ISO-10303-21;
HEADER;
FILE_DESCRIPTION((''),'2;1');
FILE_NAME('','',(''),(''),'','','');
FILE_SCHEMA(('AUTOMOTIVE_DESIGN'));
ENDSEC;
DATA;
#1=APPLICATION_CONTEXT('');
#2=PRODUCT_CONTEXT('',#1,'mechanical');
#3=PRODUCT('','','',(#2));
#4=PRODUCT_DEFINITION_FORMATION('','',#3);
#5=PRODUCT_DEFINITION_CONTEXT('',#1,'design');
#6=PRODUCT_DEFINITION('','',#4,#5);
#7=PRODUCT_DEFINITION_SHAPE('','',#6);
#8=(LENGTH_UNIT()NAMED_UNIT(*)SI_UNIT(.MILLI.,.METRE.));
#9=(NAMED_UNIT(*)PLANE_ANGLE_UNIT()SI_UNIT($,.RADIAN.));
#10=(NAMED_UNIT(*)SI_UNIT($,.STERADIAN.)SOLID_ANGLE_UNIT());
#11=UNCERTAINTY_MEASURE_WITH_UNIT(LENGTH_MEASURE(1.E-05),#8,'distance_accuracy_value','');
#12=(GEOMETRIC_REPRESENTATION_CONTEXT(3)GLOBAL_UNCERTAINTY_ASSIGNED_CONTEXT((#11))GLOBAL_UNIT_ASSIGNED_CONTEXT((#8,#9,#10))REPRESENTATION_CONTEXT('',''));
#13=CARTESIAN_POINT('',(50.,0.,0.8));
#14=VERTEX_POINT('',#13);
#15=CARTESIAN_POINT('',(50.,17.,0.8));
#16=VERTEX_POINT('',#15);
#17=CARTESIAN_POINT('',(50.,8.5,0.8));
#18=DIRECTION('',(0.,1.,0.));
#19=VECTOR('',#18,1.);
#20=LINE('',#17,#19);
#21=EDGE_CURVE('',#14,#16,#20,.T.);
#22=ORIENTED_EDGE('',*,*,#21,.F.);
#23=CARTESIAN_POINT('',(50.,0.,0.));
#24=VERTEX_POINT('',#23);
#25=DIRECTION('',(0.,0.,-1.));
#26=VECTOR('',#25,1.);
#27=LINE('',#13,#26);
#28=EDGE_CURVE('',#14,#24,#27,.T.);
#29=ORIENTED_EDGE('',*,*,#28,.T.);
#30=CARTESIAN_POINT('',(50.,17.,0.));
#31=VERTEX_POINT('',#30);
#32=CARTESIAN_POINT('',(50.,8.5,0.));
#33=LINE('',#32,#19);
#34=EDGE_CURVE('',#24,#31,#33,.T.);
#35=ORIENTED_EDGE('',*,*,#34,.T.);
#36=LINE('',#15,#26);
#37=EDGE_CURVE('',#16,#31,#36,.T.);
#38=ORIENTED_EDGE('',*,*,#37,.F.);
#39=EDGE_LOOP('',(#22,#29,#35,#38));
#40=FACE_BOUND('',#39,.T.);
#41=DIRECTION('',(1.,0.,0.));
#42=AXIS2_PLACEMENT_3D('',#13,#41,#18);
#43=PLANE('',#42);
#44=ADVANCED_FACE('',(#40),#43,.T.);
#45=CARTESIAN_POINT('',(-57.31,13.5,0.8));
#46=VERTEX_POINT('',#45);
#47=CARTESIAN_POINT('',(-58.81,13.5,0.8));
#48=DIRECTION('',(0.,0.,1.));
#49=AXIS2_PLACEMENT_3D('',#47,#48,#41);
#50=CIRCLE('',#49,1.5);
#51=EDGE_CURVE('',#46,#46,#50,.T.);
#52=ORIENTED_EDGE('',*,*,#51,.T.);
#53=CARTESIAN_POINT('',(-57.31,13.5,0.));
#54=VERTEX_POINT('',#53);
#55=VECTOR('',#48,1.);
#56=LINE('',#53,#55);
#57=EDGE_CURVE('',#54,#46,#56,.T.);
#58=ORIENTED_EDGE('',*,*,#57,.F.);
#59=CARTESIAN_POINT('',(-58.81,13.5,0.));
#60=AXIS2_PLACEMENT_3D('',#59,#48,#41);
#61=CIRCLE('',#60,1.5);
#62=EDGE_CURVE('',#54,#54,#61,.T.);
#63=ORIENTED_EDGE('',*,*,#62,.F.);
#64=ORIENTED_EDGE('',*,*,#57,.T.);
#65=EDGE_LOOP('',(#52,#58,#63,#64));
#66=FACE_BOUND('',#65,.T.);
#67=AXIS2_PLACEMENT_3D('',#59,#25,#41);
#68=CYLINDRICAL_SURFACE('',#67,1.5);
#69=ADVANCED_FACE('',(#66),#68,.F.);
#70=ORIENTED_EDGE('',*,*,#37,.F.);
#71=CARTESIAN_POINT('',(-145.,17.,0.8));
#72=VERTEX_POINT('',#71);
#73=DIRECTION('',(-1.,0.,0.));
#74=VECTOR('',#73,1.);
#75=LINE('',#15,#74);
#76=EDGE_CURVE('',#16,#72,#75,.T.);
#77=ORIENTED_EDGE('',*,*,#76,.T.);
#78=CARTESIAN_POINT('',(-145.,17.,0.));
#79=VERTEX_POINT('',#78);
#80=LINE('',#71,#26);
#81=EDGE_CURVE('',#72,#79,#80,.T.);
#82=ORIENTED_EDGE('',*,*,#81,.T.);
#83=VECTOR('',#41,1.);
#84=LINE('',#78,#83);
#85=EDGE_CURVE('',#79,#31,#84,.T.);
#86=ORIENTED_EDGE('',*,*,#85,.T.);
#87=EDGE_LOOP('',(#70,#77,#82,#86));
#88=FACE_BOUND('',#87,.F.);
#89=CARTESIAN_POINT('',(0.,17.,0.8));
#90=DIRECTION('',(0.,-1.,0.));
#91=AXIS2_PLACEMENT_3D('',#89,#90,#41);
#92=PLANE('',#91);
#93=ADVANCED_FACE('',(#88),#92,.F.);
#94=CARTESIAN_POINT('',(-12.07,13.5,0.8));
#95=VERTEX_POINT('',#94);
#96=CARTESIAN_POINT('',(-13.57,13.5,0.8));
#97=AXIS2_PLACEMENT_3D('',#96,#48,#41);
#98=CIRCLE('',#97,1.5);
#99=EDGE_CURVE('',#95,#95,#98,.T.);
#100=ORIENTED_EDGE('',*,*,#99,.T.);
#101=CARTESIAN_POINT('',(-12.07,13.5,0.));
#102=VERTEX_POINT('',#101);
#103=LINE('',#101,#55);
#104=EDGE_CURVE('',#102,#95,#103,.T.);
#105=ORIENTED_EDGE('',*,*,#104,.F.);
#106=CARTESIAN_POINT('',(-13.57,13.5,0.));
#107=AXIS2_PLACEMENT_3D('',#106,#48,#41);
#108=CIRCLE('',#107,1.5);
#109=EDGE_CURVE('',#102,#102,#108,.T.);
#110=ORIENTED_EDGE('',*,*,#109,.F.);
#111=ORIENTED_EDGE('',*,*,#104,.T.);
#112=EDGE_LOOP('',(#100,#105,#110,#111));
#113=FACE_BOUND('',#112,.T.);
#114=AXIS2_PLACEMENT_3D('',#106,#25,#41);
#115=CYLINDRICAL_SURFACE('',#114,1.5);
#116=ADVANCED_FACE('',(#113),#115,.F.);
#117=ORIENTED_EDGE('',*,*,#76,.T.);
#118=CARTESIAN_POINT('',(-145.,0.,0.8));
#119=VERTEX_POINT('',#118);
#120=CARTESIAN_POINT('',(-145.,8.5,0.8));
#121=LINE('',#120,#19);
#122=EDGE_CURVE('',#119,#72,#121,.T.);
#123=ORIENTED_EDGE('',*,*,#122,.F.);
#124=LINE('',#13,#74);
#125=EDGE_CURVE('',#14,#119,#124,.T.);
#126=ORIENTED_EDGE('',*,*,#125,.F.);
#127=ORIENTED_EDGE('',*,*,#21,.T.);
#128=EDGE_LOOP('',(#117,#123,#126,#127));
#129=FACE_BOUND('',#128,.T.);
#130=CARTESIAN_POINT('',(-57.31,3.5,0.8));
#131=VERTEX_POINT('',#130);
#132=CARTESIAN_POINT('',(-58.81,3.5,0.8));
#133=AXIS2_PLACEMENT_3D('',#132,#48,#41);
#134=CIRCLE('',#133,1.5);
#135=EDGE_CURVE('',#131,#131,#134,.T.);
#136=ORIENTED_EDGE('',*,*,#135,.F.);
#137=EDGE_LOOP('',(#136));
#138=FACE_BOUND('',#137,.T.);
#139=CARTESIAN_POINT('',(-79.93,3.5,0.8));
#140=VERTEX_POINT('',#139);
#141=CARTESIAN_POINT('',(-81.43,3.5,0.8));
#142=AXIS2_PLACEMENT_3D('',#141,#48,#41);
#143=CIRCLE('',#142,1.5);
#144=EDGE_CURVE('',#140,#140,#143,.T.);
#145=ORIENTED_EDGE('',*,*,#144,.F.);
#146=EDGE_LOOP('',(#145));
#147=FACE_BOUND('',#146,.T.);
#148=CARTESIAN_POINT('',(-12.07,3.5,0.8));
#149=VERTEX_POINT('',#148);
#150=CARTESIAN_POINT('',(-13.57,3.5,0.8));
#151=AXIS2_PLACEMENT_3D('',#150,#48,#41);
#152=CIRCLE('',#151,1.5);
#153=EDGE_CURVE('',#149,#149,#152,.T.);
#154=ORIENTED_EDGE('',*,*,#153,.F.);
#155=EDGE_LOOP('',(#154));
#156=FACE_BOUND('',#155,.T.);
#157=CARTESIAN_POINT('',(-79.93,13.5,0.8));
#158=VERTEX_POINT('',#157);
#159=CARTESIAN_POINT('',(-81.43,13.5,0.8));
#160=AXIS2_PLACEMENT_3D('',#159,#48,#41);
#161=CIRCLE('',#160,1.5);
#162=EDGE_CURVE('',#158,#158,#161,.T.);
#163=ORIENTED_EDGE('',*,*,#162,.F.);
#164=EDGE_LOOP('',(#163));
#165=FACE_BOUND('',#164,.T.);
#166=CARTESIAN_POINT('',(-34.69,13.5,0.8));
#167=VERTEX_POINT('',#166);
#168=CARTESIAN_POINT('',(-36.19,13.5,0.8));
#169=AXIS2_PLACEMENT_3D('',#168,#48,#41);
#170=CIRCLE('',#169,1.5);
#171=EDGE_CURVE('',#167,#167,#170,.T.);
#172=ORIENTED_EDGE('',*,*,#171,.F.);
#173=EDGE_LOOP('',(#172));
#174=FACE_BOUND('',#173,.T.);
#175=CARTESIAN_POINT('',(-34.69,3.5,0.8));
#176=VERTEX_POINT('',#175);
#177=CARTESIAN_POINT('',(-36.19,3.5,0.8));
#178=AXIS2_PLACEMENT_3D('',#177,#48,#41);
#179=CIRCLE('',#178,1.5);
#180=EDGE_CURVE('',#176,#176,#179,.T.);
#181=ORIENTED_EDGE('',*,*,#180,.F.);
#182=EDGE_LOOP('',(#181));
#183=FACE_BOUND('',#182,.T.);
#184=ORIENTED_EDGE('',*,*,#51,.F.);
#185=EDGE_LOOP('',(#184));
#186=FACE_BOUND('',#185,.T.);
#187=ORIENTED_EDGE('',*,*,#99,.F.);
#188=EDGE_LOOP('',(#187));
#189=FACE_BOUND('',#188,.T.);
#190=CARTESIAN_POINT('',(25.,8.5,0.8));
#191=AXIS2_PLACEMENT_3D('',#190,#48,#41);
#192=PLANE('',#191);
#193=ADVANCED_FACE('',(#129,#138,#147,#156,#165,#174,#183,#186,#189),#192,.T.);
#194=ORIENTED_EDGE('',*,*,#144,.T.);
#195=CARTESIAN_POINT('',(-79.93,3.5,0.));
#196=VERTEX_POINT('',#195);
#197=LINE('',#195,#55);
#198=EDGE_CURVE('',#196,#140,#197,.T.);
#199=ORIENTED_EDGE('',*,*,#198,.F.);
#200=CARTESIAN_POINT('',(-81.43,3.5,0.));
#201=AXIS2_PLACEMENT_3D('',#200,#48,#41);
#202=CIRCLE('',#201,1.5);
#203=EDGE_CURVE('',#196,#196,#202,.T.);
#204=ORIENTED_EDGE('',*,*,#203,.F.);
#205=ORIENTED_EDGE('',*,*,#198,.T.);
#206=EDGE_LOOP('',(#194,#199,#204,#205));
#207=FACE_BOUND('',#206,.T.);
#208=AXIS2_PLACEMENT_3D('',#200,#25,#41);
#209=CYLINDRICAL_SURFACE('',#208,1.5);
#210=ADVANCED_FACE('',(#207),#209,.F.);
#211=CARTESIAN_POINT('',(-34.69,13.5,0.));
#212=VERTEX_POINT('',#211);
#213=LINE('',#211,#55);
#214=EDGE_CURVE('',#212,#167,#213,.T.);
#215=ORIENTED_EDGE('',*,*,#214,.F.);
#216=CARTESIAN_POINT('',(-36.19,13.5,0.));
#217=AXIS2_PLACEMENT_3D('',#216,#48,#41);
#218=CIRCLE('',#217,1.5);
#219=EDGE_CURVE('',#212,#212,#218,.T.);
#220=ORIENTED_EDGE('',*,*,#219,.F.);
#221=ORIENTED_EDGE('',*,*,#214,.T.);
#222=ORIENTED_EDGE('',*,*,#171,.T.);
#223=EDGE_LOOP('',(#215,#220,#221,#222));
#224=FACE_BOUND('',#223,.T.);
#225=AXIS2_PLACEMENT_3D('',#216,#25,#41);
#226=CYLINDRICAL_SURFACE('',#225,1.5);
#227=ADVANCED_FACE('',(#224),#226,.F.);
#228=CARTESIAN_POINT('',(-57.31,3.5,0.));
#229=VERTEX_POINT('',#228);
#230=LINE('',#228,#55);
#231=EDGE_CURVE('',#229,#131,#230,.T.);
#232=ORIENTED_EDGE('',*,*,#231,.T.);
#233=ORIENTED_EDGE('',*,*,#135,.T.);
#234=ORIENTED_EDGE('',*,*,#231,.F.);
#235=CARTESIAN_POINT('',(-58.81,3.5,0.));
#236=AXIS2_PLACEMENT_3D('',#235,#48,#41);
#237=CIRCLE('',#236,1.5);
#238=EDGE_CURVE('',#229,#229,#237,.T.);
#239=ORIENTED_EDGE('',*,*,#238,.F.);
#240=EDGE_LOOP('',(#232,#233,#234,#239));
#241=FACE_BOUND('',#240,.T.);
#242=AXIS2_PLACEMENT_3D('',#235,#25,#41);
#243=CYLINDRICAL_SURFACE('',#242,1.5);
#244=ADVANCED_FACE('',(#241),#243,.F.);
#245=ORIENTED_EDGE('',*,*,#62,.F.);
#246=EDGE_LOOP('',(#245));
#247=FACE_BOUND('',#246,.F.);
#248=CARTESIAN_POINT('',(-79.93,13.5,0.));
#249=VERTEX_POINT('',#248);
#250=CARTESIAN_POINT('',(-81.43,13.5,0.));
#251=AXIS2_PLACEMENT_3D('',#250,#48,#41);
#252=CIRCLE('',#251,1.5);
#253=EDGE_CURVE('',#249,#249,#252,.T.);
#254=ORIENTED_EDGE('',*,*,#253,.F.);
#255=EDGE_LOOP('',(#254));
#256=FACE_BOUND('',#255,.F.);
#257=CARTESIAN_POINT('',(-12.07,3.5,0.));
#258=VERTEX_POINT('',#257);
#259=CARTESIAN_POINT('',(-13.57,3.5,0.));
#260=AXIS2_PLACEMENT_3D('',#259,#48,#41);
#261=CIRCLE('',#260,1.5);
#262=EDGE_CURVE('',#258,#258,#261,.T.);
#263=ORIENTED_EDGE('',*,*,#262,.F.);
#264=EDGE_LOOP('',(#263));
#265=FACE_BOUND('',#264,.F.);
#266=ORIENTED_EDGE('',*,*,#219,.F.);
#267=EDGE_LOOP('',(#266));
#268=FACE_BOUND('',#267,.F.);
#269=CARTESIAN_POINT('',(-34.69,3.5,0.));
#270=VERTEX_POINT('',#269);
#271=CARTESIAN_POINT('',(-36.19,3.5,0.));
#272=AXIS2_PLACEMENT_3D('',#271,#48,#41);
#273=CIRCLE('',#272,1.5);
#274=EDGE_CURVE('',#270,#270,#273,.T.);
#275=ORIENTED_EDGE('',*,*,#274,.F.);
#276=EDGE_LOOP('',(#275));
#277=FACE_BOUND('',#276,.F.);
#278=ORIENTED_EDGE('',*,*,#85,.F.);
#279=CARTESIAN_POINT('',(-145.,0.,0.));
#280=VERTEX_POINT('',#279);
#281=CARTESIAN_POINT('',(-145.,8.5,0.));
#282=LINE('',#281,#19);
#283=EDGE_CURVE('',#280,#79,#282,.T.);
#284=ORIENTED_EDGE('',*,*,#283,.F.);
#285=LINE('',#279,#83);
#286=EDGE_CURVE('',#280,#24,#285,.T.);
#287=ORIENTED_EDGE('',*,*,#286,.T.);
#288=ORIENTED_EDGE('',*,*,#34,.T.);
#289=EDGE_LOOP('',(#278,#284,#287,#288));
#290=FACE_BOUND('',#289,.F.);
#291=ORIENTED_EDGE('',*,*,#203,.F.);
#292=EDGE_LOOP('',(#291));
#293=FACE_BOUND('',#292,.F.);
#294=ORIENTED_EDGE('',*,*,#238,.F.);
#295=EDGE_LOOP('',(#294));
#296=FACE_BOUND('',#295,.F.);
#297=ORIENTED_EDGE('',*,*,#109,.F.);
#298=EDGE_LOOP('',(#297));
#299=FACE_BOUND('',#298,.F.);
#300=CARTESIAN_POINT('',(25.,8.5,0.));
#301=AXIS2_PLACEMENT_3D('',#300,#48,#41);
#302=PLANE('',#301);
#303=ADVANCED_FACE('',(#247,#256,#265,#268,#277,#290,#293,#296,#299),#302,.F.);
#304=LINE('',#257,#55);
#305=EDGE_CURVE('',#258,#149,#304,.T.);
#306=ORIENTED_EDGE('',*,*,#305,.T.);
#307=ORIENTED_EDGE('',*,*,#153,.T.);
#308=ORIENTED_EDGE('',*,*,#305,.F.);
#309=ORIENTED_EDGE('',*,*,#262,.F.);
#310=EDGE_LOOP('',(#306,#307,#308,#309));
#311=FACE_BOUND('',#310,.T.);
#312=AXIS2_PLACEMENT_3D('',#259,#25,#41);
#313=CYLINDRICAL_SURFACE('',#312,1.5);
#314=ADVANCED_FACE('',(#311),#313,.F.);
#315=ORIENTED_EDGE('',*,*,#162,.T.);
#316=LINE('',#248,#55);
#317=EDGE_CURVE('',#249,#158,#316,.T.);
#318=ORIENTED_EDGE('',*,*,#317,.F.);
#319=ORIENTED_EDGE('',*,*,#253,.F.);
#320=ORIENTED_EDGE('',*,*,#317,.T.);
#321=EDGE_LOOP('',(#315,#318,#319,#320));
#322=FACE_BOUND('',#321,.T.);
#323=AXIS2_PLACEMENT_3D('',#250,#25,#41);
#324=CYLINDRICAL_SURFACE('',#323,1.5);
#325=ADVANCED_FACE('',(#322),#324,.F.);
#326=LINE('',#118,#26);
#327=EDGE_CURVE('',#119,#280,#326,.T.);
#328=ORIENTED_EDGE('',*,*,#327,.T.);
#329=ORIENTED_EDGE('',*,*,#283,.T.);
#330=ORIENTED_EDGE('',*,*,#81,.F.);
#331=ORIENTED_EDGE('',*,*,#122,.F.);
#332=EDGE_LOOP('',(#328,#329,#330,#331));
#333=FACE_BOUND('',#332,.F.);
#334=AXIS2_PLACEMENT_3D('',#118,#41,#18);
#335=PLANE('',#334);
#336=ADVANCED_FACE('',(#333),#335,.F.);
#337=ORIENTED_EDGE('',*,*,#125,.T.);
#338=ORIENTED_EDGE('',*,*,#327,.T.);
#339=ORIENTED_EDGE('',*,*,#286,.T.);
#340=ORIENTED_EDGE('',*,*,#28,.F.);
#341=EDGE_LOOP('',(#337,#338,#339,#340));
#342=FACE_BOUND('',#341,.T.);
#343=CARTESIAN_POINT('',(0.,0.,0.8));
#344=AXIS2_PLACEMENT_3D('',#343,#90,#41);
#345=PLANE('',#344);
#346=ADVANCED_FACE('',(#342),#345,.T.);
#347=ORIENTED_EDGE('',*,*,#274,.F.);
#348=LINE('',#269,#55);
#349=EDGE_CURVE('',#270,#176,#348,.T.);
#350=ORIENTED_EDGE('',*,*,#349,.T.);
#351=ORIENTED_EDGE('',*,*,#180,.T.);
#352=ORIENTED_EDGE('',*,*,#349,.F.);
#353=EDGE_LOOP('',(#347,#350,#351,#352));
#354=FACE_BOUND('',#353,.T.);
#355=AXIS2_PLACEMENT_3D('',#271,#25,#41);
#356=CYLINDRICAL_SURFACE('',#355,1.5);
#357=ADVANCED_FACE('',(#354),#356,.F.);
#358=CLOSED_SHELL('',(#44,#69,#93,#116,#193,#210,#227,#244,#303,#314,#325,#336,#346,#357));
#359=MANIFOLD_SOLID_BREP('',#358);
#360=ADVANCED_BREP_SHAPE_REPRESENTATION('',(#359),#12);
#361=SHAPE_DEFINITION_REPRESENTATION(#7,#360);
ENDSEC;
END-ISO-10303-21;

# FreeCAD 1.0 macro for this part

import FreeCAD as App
import Part
import Sketcher
Q = App.Units.Quantity


def add_polygon(sketch, points):
    """Adds a closed chain of lines whose ends are joined by coincident constraints."""
    first, n = sketch.GeometryCount, len(points)
    for a, b in zip(points, points[1:] + points[:1]):
        sketch.addGeometry(Part.LineSegment(App.Vector(*a, 0), App.Vector(*b, 0)), False)
    for i in range(n):
        sketch.addConstraint(Sketcher.Constraint("Coincident", first + i, 2, first + (i + 1) % n, 1))

doc = App.newDocument("Part")
body = doc.addObject("PartDesign::Body", "Body")

# Sketch on XY plane
sketch1 = doc.addObject("Sketcher::SketchObject", "Sketch")
body.addObject(sketch1)
sketch1.AttachmentSupport = (doc.XY_Plane, [""])
sketch1.MapMode = "FlatFace"
add_polygon(sketch1, [(-95, 17), (-95, 0), (0, 0), (0, 17)])  # lines 0-3
sketch1.addGeometry(Part.Circle(App.Vector(-81.4, 3.5, 0), App.Vector(0, 0, 1), 1.5), False)  # 4
sketch1.addGeometry(Part.Circle(App.Vector(-58.8, 3.5, 0), App.Vector(0, 0, 1), 1.5), False)  # 5
sketch1.addGeometry(Part.Circle(App.Vector(-36.2, 3.5, 0), App.Vector(0, 0, 1), 1.5), False)  # 6
sketch1.addGeometry(Part.Circle(App.Vector(-13.6, 3.5, 0), App.Vector(0, 0, 1), 1.5), False)  # 7
sketch1.addGeometry(Part.Circle(App.Vector(-81.4, 13.5, 0), App.Vector(0, 0, 1), 1.5), False)  # 8
sketch1.addGeometry(Part.Circle(App.Vector(-58.8, 13.5, 0), App.Vector(0, 0, 1), 1.5), False)  # 9
sketch1.addGeometry(Part.Circle(App.Vector(-36.2, 13.5, 0), App.Vector(0, 0, 1), 1.5), False)  # 10
sketch1.addGeometry(Part.Circle(App.Vector(-13.6, 13.5, 0), App.Vector(0, 0, 1), 1.5), False)  # 11
sketch1.addConstraint(Sketcher.Constraint("Vertical", 0))
sketch1.addConstraint(Sketcher.Constraint("Horizontal", 1))
sketch1.addConstraint(Sketcher.Constraint("Vertical", 2))
sketch1.addConstraint(Sketcher.Constraint("Horizontal", 3))
sketch1.addConstraint(Sketcher.Constraint("Coincident", 1, 2, -1, 1))
sketch1.addConstraint(Sketcher.Constraint("Equal", 4, 5))
sketch1.addConstraint(Sketcher.Constraint("Equal", 5, 6))
sketch1.addConstraint(Sketcher.Constraint("Equal", 6, 7))
sketch1.addConstraint(Sketcher.Constraint("Equal", 7, 8))
sketch1.addConstraint(Sketcher.Constraint("Equal", 8, 9))
sketch1.addConstraint(Sketcher.Constraint("Equal", 9, 10))
sketch1.addConstraint(Sketcher.Constraint("Equal", 10, 11))
sketch1.addConstraint(Sketcher.Constraint("Horizontal", 4, 3, 5, 3))
sketch1.addConstraint(Sketcher.Constraint("Horizontal", 5, 3, 6, 3))
sketch1.addConstraint(Sketcher.Constraint("Horizontal", 6, 3, 7, 3))
sketch1.addConstraint(Sketcher.Constraint("Horizontal", 8, 3, 9, 3))
sketch1.addConstraint(Sketcher.Constraint("Horizontal", 9, 3, 10, 3))
sketch1.addConstraint(Sketcher.Constraint("Horizontal", 10, 3, 11, 3))
sketch1.addConstraint(Sketcher.Constraint("Vertical", 4, 3, 8, 3))
sketch1.addConstraint(Sketcher.Constraint("Vertical", 5, 3, 9, 3))
sketch1.addConstraint(Sketcher.Constraint("Vertical", 6, 3, 10, 3))
sketch1.addConstraint(Sketcher.Constraint("Vertical", 7, 3, 11, 3))
sketch1.addConstraint(Sketcher.Constraint("Diameter", 4, Q("3 mm")))
sketch1.addConstraint(Sketcher.Constraint("DistanceX", 1, 1, 1, 2, Q("95 mm")))
sketch1.addConstraint(Sketcher.Constraint("DistanceY", 0, 2, 0, 1, Q("17 mm")))
sketch1.addConstraint(Sketcher.Constraint("DistanceY", 4, 3, 8, 3, Q("10 mm")))
sketch1.addConstraint(Sketcher.Constraint("DistanceY", -1, 1, 4, 3, Q("3.5 mm")))
sketch1.addConstraint(Sketcher.Constraint("DistanceX", 4, 3, -1, 1, Q("81.43 mm")))
sketch1.addConstraint(Sketcher.Constraint("DistanceX", 5, 3, -1, 1, Q("58.81 mm")))
sketch1.addConstraint(Sketcher.Constraint("DistanceX", 6, 3, -1, 1, Q("36.19 mm")))
sketch1.addConstraint(Sketcher.Constraint("DistanceX", 7, 3, -1, 1, Q("13.57 mm")))
pad1 = doc.addObject("PartDesign::Pad", "Pad")
body.addObject(pad1)
pad1.Profile = sketch1
pad1.Length = 0.8

# Sketch on XY plane
sketch2 = doc.addObject("Sketcher::SketchObject", "Sketch001")
body.addObject(sketch2)
sketch2.AttachmentSupport = (doc.XY_Plane, [""])
sketch2.MapMode = "FlatFace"
sketch2.AttachmentOffset = App.Placement(App.Vector(0, 0, 0.8), App.Rotation())
add_polygon(sketch2, [(0, 17), (0, 0), (50, 0), (50, 17)])  # lines 0-3
add_polygon(sketch2, [(-145, 17), (-145, 0), (-95, 0), (-95, 17)])  # lines 4-7
sketch2.addConstraint(Sketcher.Constraint("Vertical", 0))
sketch2.addConstraint(Sketcher.Constraint("Horizontal", 1))
sketch2.addConstraint(Sketcher.Constraint("Vertical", 2))
sketch2.addConstraint(Sketcher.Constraint("Horizontal", 3))
sketch2.addConstraint(Sketcher.Constraint("Vertical", 4))
sketch2.addConstraint(Sketcher.Constraint("Horizontal", 5))
sketch2.addConstraint(Sketcher.Constraint("Vertical", 6))
sketch2.addConstraint(Sketcher.Constraint("Horizontal", 7))
sketch2.addConstraint(Sketcher.Constraint("Coincident", 0, 2, -1, 1))
sketch2.addConstraint(Sketcher.Constraint("PointOnObject", 4, 2, -1))
sketch2.addConstraint(Sketcher.Constraint("Horizontal", 3, 2, 6, 2))
sketch2.addConstraint(Sketcher.Constraint("Equal", 3, 5))
sketch2.addConstraint(Sketcher.Constraint("DistanceX", 1, 1, 1, 2, Q("50 mm")))
sketch2.addConstraint(Sketcher.Constraint("DistanceY", 0, 2, 0, 1, Q("17 mm")))
sketch2.addConstraint(Sketcher.Constraint("DistanceX", 4, 2, -1, 1, Q("145 mm")))
pad2 = doc.addObject("PartDesign::Pad", "Pad001")
body.addObject(pad2)
pad2.Profile = sketch2
pad2.Type = "UpToLast"
pad2.Reversed = True

doc.recompute()
